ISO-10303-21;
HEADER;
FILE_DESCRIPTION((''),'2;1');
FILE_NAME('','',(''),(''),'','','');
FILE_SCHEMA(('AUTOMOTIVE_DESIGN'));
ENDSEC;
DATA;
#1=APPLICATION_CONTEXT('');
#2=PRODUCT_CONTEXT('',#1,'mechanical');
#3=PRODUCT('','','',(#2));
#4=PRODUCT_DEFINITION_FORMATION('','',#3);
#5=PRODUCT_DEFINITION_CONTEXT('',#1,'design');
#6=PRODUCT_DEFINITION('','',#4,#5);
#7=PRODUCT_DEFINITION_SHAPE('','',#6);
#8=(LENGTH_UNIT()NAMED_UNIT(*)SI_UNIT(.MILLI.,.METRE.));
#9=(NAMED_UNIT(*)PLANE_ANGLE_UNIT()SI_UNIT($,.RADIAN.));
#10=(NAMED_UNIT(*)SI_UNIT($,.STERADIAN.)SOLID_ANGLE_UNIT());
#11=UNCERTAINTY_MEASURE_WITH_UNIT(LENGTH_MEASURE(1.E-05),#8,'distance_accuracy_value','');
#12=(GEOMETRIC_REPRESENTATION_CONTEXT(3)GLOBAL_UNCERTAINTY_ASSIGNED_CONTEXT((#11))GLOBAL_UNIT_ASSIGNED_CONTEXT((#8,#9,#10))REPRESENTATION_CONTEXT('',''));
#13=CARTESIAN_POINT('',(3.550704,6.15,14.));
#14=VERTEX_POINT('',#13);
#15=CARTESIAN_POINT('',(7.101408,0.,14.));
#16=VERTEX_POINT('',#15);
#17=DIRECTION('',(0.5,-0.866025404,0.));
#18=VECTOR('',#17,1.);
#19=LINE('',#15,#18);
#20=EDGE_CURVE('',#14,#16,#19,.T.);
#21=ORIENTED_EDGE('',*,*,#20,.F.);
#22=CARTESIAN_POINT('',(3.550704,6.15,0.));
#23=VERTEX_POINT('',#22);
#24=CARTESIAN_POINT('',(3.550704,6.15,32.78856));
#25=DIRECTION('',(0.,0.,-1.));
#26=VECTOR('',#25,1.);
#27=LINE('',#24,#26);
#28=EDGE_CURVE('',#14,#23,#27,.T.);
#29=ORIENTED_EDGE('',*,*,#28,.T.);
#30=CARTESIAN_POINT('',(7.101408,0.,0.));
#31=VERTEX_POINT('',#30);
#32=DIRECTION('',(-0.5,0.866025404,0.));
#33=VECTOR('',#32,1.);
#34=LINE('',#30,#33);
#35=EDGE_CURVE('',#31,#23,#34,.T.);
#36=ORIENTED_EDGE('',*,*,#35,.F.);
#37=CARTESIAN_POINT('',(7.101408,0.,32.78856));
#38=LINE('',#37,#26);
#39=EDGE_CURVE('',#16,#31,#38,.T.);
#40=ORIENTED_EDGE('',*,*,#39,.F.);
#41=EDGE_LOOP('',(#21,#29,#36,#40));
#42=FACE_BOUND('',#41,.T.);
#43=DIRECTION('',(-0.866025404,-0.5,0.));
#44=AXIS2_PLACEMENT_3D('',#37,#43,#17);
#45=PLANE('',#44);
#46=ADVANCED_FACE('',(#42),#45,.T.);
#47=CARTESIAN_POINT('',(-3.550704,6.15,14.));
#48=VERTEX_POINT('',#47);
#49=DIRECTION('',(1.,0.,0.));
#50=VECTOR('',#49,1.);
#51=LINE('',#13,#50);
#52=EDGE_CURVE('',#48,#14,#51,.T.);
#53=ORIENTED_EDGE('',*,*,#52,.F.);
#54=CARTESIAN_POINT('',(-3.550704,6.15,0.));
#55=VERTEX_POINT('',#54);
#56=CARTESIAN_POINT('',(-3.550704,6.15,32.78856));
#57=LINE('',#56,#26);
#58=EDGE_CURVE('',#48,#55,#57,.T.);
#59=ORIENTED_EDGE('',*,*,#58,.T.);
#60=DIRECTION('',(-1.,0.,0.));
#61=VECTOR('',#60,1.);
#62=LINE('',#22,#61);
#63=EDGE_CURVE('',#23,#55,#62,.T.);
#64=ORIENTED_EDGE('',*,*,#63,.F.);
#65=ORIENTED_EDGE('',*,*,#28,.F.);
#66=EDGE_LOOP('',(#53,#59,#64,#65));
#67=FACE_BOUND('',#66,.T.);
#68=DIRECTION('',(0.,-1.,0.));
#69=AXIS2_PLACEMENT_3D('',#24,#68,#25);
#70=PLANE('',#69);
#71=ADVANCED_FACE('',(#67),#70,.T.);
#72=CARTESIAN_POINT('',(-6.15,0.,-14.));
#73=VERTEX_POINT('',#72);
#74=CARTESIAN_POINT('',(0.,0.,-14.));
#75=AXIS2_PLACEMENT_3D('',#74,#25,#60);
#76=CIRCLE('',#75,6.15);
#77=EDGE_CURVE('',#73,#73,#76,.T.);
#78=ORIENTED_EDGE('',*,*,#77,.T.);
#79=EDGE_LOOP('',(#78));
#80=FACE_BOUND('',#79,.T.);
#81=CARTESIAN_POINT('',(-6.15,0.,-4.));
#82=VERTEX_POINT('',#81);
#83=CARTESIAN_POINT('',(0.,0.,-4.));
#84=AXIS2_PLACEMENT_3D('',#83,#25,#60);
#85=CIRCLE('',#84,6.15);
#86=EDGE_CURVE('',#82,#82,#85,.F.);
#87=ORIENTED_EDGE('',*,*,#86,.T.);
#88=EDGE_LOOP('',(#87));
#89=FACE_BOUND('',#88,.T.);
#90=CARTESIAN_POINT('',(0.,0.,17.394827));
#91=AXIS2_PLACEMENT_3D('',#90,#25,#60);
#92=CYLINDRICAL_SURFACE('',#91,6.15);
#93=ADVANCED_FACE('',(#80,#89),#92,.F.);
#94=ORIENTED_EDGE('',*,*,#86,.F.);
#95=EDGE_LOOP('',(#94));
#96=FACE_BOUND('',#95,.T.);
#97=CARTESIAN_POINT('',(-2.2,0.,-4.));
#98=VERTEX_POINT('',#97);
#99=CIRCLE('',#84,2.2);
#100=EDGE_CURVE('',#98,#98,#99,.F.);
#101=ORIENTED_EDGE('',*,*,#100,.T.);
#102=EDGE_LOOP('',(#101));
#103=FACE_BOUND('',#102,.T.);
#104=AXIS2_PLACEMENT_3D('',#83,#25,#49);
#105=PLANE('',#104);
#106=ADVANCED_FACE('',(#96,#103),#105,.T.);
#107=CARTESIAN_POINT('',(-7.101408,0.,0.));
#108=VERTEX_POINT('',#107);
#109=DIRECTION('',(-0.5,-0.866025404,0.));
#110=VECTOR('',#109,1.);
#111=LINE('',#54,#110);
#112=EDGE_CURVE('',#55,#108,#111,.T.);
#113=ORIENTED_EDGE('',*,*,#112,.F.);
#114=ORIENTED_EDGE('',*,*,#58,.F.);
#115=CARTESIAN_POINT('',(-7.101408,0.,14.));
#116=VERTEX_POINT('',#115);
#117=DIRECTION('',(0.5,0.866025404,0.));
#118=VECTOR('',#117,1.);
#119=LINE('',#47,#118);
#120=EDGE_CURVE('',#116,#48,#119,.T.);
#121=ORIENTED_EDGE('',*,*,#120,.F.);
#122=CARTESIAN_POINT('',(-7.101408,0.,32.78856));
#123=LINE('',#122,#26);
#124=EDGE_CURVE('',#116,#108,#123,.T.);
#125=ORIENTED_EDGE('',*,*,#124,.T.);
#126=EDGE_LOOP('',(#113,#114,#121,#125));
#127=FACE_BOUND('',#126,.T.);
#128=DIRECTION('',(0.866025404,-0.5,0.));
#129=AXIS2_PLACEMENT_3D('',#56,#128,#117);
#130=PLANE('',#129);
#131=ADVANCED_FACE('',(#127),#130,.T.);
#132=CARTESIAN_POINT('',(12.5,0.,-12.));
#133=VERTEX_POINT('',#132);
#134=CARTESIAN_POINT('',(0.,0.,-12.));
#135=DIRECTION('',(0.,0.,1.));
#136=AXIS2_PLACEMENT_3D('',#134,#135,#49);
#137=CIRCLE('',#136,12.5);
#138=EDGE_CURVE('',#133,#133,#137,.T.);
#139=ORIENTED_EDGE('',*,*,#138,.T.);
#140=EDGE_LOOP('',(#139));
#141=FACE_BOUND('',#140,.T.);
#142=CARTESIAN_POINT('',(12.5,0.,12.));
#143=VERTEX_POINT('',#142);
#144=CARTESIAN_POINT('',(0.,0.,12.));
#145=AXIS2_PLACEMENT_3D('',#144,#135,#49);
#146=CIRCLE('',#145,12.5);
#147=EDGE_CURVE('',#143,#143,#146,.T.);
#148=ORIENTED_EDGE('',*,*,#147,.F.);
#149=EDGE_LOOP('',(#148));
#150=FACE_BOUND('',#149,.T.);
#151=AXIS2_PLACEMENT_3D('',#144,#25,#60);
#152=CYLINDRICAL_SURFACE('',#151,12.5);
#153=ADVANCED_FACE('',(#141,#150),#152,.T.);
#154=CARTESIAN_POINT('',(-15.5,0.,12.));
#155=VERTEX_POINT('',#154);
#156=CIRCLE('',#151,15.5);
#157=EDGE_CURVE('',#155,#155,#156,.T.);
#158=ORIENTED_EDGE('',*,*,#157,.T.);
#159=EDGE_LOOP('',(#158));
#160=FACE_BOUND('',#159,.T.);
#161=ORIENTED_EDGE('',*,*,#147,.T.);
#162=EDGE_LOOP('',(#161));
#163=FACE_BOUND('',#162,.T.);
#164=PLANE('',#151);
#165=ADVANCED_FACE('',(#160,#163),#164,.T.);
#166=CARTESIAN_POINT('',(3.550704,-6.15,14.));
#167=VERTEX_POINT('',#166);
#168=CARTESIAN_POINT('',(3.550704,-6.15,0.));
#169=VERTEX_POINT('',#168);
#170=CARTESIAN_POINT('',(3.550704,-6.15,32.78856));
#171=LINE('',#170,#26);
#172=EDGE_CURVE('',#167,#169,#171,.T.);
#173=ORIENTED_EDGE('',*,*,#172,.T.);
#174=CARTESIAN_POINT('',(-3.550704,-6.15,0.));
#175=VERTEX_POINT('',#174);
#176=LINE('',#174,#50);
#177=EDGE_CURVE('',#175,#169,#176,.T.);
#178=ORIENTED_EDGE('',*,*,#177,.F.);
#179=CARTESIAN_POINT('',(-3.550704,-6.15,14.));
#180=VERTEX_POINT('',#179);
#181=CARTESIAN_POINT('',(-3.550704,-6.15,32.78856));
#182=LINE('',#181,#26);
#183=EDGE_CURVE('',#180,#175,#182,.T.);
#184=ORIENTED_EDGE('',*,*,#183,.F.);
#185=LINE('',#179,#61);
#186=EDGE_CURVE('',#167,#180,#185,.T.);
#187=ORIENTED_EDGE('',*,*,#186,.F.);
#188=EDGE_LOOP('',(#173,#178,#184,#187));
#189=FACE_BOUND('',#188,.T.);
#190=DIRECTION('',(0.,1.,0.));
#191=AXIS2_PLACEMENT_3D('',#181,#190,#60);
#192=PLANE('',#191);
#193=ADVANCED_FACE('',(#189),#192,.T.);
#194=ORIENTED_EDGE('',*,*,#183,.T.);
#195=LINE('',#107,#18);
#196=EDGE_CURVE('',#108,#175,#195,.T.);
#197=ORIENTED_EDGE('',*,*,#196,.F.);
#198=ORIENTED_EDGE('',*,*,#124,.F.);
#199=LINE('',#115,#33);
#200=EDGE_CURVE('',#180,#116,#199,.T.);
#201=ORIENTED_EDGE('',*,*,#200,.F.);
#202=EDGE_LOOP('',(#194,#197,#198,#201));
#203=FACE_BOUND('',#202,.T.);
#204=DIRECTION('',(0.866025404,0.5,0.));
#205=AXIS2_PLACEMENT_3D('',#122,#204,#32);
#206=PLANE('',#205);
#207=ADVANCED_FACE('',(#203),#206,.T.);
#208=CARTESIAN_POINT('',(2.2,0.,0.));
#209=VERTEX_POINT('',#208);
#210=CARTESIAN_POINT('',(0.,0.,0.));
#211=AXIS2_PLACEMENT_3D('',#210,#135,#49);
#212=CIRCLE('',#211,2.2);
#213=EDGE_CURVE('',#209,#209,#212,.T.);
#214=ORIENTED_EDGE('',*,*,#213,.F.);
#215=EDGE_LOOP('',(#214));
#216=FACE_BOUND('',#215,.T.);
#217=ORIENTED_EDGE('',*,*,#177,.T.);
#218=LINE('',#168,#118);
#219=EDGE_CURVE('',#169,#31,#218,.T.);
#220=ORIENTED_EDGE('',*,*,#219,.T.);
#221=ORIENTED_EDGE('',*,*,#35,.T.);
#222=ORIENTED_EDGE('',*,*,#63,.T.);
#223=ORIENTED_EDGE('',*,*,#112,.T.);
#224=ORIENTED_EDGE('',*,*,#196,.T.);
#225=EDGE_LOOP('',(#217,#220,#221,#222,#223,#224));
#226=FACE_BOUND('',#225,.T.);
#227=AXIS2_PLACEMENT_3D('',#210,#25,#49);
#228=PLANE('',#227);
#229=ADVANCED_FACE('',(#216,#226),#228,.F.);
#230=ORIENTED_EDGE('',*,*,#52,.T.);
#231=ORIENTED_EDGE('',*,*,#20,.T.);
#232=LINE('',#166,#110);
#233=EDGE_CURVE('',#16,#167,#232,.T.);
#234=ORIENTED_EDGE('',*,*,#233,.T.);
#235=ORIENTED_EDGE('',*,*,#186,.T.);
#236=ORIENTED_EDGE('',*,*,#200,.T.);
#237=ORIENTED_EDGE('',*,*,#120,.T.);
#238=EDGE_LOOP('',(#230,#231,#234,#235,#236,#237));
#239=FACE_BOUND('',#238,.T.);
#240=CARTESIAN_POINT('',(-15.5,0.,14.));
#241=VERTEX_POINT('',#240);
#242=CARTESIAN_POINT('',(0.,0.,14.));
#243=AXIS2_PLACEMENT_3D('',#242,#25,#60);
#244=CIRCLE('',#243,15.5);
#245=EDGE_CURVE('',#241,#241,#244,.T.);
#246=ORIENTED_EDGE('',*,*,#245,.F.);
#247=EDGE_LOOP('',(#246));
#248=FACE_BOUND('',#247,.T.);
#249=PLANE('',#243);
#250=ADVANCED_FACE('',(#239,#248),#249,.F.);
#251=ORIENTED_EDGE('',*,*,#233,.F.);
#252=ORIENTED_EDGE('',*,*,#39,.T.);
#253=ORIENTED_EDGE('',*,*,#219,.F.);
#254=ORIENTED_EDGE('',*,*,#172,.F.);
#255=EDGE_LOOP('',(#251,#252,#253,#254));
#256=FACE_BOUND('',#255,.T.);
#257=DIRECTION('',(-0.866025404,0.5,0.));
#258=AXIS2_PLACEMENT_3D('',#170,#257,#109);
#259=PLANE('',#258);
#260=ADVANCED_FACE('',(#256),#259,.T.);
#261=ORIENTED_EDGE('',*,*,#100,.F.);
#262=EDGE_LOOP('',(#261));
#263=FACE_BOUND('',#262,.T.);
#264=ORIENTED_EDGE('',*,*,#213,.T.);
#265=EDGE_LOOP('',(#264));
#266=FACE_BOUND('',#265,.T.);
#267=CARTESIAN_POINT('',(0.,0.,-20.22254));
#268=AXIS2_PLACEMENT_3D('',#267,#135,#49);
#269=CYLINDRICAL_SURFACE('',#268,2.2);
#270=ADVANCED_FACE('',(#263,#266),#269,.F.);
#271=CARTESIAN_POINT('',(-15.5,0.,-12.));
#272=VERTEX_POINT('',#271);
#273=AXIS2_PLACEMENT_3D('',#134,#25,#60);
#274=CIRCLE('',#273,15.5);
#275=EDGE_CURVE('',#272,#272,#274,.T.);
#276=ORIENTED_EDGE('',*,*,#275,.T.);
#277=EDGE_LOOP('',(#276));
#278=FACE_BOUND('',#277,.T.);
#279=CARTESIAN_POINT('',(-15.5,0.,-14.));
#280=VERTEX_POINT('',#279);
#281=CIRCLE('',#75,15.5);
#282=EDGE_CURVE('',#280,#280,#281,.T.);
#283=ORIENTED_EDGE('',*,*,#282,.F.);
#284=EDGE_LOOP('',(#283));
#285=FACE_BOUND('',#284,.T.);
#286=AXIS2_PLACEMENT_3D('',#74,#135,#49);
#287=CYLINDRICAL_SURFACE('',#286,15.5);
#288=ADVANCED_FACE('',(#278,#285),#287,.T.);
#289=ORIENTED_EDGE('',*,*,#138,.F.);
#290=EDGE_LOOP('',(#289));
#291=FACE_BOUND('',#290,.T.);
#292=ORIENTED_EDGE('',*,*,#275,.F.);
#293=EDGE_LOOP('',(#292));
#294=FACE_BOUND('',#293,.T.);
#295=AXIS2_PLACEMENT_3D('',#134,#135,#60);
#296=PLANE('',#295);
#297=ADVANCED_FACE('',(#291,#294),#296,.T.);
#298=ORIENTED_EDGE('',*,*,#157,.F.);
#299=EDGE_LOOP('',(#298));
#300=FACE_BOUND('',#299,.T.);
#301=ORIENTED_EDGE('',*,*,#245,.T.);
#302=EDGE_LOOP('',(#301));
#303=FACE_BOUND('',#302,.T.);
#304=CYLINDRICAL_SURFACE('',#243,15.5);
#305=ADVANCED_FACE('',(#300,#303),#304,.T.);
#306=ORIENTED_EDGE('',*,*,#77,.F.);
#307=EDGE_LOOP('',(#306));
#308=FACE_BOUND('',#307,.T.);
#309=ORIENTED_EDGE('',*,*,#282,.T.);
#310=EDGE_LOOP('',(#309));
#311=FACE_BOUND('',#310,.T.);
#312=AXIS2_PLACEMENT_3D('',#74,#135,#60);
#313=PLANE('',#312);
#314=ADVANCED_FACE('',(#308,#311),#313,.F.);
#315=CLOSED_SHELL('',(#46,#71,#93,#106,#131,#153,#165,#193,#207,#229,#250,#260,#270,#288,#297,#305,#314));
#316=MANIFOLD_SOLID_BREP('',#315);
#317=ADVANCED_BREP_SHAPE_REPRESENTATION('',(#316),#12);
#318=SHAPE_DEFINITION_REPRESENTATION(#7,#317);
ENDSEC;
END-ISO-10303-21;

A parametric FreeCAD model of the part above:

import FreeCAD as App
import Part
import Sketcher

V = App.Vector
Q = App.Units.Quantity


def add_polygon(sketch, points):
    """Adds a closed chain of lines whose ends are joined by coincident constraints."""
    first, n = sketch.GeometryCount, len(points)
    for a, b in zip(points, points[1:] + points[:1]):
        sketch.addGeometry(Part.LineSegment(App.Vector(*a, 0), App.Vector(*b, 0)), False)
    for i in range(n):
        sketch.addConstraint(Sketcher.Constraint("Coincident", first + i, 2, first + (i + 1) % n, 1))

doc = App.newDocument("Part")
params = doc.addObject("Spreadsheet::Sheet", "Params")
for row, (alias, value) in enumerate([
    ("sketch1_diameter", "25 mm"),
    ("pad1_length", "12 mm"),
    ("sketch2_diameter", "31 mm"),
    ("pad2_length", "2 mm"),
    ("pocket1_length", "14 mm"),
    ("sketch4_diameter", "4.4 mm"),
    ("pocket2_length", "14 mm"),
    ("sketch5_diameter", "12.3 mm"),
    ("pocket3_length", "10 mm"),
], start=1):
    params.set(f"A{row}", alias)
    params.set(f"B{row}", "=" + value)
    params.setAlias(f"B{row}", alias)

body = doc.addObject("PartDesign::Body", "Body")

# Sketch on XY plane
sketch1 = body.newObject("Sketcher::SketchObject", "Sketch")
sketch1.AttachmentSupport = (doc.getObject("XY_Plane"), [""])
sketch1.MapMode = "FlatFace"
sketch1.addGeometry(Part.Circle(V(0, 0, 0), V(0, 0, 1), 12.5), False)
sketch1.addConstraint([
    Sketcher.Constraint("Coincident", 0, 3, -1, 1),
    Sketcher.Constraint("Diameter", 0, 25.0),
])
sketch1.setExpression("Constraints[1]", "Params.sketch1_diameter")
pad1 = body.newObject("PartDesign::Pad", "Pad")
pad1.Profile = sketch1
pad1.setExpression("Length", "Params.pad1_length")

# Sketch on XY plane
sketch2 = body.newObject("Sketcher::SketchObject", "Sketch001")
sketch2.AttachmentSupport = (doc.getObject("XY_Plane"), [""])
sketch2.MapMode = "FlatFace"
sketch2.AttachmentOffset = App.Placement(V(0, 0, 12), App.Rotation())
sketch2.addGeometry(Part.Circle(V(0, 0, 0), V(0, 0, 1), 15.5), False)
sketch2.addConstraint([
    Sketcher.Constraint("Coincident", 0, 3, -1, 1),
    Sketcher.Constraint("Diameter", 0, 31.0),
])
sketch2.setExpression("Constraints[1]", "Params.sketch2_diameter")
pad2 = body.newObject("PartDesign::Pad", "Pad001")
pad2.Profile = sketch2
pad2.setExpression("Length", "Params.pad2_length")

# Sketch on XY plane
sketch3 = body.newObject("Sketcher::SketchObject", "Sketch002")
sketch3.AttachmentSupport = (doc.getObject("XY_Plane"), [""])
sketch3.MapMode = "FlatFace"
add_polygon(sketch3, [(3.550704, -6.15), (7.101408, 0), (3.550704, 6.15), (-3.550704, 6.15), (-7.101408, 0), (-3.550704, -6.15)])  # lines 0-5
sketch3.addConstraint([
    Sketcher.Constraint("Horizontal", 2),
    Sketcher.Constraint("Horizontal", 5),
    Sketcher.Constraint("Symmetric", 0, 2, 3, 2, -1, 1),
    Sketcher.Constraint("Symmetric", 1, 2, 4, 2, -1, 1),
    Sketcher.Constraint("PointOnObject", 0, 2, -1),
    Sketcher.Constraint("Parallel", 0, 3),
    Sketcher.Constraint("Vertical", 2, 2, 4, 2),
    Sketcher.Constraint("Angle", 0, Q("60 deg")),
    Sketcher.Constraint("DistanceY", 4, 2, 2, 2, 12.3),
    Sketcher.Constraint("DistanceX", 2, 2, 2, 1, 7.101408),
])
pocket1 = body.newObject("PartDesign::Pocket", "Pocket")
pocket1.Profile = sketch3
pocket1.setExpression("Length", "Params.pocket1_length")
pocket1.Reversed = True
doc.recompute()

mirrored = body.newObject("PartDesign::Mirrored", "Mirrored")
mirrored.Originals = [pad1, pad2]
mirrored.MirrorPlane = (doc.getObject("XY_Plane"), [""])
body.Tip = mirrored

# Sketch on XY plane
sketch4 = body.newObject("Sketcher::SketchObject", "Sketch003")
sketch4.AttachmentSupport = (doc.getObject("XY_Plane"), [""])
sketch4.MapMode = "FlatFace"
sketch4.addGeometry(Part.Circle(V(0, 0, 0), V(0, 0, 1), 2.2), False)
sketch4.addConstraint([
    Sketcher.Constraint("Coincident", 0, 3, -1, 1),
    Sketcher.Constraint("Diameter", 0, 4.4),
])
sketch4.setExpression("Constraints[1]", "Params.sketch4_diameter")
pocket2 = body.newObject("PartDesign::Pocket", "Pocket001")
pocket2.Profile = sketch4
pocket2.setExpression("Length", "Params.pocket2_length")

# Sketch on XY plane
sketch5 = body.newObject("Sketcher::SketchObject", "Sketch004")
sketch5.AttachmentSupport = (doc.getObject("XY_Plane"), [""])
sketch5.MapMode = "FlatFace"
sketch5.AttachmentOffset = App.Placement(V(0, 0, -14), App.Rotation())
sketch5.addGeometry(Part.Circle(V(0, 0, 0), V(0, 0, 1), 6.15), False)
sketch5.addConstraint([
    Sketcher.Constraint("Coincident", 0, 3, -1, 1),
    Sketcher.Constraint("Diameter", 0, 12.3),
])
sketch5.setExpression("Constraints[1]", "Params.sketch5_diameter")
pocket3 = body.newObject("PartDesign::Pocket", "Pocket002")
pocket3.Profile = sketch5
pocket3.setExpression("Length", "Params.pocket3_length")
pocket3.Reversed = True

doc.recompute()
